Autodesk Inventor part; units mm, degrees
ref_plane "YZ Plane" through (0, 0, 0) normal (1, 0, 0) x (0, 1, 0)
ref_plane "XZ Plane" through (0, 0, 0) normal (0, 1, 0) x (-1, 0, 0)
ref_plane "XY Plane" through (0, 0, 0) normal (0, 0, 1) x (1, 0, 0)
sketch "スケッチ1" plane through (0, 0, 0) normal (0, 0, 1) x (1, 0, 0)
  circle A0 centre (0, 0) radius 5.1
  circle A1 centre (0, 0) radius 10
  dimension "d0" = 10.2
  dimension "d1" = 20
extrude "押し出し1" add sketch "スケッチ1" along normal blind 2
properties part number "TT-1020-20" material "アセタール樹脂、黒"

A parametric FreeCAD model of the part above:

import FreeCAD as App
import Part
import Sketcher

V = App.Vector

doc = App.newDocument("Part")
body = doc.addObject("PartDesign::Body", "Body")

sketch1 = body.newObject("Sketcher::SketchObject", "Sketch")
sketch1.AttachmentSupport = (doc.getObject("XY_Plane"), [""])
sketch1.MapMode = "FlatFace"
sketch1.addGeometry(Part.Circle(V(0, 0, 0), V(0, 0, 1), 10), False)
sketch1.addGeometry(Part.Circle(V(0, 0, 0), V(0, 0, 1), 5), False)
sketch1.addConstraint(Sketcher.Constraint("Coincident", 0, 3, -1, 1))
sketch1.addConstraint(Sketcher.Constraint("Coincident", 1, 3, -1, 1))
sketch1.addConstraint(Sketcher.Constraint("Diameter", 0, 20.0))
sketch1.addConstraint(Sketcher.Constraint("Diameter", 1, 10.2))
pad1 = body.newObject("PartDesign::Pad", "Pad")
pad1.Profile = sketch1
pad1.Length = 2

doc.recompute()
